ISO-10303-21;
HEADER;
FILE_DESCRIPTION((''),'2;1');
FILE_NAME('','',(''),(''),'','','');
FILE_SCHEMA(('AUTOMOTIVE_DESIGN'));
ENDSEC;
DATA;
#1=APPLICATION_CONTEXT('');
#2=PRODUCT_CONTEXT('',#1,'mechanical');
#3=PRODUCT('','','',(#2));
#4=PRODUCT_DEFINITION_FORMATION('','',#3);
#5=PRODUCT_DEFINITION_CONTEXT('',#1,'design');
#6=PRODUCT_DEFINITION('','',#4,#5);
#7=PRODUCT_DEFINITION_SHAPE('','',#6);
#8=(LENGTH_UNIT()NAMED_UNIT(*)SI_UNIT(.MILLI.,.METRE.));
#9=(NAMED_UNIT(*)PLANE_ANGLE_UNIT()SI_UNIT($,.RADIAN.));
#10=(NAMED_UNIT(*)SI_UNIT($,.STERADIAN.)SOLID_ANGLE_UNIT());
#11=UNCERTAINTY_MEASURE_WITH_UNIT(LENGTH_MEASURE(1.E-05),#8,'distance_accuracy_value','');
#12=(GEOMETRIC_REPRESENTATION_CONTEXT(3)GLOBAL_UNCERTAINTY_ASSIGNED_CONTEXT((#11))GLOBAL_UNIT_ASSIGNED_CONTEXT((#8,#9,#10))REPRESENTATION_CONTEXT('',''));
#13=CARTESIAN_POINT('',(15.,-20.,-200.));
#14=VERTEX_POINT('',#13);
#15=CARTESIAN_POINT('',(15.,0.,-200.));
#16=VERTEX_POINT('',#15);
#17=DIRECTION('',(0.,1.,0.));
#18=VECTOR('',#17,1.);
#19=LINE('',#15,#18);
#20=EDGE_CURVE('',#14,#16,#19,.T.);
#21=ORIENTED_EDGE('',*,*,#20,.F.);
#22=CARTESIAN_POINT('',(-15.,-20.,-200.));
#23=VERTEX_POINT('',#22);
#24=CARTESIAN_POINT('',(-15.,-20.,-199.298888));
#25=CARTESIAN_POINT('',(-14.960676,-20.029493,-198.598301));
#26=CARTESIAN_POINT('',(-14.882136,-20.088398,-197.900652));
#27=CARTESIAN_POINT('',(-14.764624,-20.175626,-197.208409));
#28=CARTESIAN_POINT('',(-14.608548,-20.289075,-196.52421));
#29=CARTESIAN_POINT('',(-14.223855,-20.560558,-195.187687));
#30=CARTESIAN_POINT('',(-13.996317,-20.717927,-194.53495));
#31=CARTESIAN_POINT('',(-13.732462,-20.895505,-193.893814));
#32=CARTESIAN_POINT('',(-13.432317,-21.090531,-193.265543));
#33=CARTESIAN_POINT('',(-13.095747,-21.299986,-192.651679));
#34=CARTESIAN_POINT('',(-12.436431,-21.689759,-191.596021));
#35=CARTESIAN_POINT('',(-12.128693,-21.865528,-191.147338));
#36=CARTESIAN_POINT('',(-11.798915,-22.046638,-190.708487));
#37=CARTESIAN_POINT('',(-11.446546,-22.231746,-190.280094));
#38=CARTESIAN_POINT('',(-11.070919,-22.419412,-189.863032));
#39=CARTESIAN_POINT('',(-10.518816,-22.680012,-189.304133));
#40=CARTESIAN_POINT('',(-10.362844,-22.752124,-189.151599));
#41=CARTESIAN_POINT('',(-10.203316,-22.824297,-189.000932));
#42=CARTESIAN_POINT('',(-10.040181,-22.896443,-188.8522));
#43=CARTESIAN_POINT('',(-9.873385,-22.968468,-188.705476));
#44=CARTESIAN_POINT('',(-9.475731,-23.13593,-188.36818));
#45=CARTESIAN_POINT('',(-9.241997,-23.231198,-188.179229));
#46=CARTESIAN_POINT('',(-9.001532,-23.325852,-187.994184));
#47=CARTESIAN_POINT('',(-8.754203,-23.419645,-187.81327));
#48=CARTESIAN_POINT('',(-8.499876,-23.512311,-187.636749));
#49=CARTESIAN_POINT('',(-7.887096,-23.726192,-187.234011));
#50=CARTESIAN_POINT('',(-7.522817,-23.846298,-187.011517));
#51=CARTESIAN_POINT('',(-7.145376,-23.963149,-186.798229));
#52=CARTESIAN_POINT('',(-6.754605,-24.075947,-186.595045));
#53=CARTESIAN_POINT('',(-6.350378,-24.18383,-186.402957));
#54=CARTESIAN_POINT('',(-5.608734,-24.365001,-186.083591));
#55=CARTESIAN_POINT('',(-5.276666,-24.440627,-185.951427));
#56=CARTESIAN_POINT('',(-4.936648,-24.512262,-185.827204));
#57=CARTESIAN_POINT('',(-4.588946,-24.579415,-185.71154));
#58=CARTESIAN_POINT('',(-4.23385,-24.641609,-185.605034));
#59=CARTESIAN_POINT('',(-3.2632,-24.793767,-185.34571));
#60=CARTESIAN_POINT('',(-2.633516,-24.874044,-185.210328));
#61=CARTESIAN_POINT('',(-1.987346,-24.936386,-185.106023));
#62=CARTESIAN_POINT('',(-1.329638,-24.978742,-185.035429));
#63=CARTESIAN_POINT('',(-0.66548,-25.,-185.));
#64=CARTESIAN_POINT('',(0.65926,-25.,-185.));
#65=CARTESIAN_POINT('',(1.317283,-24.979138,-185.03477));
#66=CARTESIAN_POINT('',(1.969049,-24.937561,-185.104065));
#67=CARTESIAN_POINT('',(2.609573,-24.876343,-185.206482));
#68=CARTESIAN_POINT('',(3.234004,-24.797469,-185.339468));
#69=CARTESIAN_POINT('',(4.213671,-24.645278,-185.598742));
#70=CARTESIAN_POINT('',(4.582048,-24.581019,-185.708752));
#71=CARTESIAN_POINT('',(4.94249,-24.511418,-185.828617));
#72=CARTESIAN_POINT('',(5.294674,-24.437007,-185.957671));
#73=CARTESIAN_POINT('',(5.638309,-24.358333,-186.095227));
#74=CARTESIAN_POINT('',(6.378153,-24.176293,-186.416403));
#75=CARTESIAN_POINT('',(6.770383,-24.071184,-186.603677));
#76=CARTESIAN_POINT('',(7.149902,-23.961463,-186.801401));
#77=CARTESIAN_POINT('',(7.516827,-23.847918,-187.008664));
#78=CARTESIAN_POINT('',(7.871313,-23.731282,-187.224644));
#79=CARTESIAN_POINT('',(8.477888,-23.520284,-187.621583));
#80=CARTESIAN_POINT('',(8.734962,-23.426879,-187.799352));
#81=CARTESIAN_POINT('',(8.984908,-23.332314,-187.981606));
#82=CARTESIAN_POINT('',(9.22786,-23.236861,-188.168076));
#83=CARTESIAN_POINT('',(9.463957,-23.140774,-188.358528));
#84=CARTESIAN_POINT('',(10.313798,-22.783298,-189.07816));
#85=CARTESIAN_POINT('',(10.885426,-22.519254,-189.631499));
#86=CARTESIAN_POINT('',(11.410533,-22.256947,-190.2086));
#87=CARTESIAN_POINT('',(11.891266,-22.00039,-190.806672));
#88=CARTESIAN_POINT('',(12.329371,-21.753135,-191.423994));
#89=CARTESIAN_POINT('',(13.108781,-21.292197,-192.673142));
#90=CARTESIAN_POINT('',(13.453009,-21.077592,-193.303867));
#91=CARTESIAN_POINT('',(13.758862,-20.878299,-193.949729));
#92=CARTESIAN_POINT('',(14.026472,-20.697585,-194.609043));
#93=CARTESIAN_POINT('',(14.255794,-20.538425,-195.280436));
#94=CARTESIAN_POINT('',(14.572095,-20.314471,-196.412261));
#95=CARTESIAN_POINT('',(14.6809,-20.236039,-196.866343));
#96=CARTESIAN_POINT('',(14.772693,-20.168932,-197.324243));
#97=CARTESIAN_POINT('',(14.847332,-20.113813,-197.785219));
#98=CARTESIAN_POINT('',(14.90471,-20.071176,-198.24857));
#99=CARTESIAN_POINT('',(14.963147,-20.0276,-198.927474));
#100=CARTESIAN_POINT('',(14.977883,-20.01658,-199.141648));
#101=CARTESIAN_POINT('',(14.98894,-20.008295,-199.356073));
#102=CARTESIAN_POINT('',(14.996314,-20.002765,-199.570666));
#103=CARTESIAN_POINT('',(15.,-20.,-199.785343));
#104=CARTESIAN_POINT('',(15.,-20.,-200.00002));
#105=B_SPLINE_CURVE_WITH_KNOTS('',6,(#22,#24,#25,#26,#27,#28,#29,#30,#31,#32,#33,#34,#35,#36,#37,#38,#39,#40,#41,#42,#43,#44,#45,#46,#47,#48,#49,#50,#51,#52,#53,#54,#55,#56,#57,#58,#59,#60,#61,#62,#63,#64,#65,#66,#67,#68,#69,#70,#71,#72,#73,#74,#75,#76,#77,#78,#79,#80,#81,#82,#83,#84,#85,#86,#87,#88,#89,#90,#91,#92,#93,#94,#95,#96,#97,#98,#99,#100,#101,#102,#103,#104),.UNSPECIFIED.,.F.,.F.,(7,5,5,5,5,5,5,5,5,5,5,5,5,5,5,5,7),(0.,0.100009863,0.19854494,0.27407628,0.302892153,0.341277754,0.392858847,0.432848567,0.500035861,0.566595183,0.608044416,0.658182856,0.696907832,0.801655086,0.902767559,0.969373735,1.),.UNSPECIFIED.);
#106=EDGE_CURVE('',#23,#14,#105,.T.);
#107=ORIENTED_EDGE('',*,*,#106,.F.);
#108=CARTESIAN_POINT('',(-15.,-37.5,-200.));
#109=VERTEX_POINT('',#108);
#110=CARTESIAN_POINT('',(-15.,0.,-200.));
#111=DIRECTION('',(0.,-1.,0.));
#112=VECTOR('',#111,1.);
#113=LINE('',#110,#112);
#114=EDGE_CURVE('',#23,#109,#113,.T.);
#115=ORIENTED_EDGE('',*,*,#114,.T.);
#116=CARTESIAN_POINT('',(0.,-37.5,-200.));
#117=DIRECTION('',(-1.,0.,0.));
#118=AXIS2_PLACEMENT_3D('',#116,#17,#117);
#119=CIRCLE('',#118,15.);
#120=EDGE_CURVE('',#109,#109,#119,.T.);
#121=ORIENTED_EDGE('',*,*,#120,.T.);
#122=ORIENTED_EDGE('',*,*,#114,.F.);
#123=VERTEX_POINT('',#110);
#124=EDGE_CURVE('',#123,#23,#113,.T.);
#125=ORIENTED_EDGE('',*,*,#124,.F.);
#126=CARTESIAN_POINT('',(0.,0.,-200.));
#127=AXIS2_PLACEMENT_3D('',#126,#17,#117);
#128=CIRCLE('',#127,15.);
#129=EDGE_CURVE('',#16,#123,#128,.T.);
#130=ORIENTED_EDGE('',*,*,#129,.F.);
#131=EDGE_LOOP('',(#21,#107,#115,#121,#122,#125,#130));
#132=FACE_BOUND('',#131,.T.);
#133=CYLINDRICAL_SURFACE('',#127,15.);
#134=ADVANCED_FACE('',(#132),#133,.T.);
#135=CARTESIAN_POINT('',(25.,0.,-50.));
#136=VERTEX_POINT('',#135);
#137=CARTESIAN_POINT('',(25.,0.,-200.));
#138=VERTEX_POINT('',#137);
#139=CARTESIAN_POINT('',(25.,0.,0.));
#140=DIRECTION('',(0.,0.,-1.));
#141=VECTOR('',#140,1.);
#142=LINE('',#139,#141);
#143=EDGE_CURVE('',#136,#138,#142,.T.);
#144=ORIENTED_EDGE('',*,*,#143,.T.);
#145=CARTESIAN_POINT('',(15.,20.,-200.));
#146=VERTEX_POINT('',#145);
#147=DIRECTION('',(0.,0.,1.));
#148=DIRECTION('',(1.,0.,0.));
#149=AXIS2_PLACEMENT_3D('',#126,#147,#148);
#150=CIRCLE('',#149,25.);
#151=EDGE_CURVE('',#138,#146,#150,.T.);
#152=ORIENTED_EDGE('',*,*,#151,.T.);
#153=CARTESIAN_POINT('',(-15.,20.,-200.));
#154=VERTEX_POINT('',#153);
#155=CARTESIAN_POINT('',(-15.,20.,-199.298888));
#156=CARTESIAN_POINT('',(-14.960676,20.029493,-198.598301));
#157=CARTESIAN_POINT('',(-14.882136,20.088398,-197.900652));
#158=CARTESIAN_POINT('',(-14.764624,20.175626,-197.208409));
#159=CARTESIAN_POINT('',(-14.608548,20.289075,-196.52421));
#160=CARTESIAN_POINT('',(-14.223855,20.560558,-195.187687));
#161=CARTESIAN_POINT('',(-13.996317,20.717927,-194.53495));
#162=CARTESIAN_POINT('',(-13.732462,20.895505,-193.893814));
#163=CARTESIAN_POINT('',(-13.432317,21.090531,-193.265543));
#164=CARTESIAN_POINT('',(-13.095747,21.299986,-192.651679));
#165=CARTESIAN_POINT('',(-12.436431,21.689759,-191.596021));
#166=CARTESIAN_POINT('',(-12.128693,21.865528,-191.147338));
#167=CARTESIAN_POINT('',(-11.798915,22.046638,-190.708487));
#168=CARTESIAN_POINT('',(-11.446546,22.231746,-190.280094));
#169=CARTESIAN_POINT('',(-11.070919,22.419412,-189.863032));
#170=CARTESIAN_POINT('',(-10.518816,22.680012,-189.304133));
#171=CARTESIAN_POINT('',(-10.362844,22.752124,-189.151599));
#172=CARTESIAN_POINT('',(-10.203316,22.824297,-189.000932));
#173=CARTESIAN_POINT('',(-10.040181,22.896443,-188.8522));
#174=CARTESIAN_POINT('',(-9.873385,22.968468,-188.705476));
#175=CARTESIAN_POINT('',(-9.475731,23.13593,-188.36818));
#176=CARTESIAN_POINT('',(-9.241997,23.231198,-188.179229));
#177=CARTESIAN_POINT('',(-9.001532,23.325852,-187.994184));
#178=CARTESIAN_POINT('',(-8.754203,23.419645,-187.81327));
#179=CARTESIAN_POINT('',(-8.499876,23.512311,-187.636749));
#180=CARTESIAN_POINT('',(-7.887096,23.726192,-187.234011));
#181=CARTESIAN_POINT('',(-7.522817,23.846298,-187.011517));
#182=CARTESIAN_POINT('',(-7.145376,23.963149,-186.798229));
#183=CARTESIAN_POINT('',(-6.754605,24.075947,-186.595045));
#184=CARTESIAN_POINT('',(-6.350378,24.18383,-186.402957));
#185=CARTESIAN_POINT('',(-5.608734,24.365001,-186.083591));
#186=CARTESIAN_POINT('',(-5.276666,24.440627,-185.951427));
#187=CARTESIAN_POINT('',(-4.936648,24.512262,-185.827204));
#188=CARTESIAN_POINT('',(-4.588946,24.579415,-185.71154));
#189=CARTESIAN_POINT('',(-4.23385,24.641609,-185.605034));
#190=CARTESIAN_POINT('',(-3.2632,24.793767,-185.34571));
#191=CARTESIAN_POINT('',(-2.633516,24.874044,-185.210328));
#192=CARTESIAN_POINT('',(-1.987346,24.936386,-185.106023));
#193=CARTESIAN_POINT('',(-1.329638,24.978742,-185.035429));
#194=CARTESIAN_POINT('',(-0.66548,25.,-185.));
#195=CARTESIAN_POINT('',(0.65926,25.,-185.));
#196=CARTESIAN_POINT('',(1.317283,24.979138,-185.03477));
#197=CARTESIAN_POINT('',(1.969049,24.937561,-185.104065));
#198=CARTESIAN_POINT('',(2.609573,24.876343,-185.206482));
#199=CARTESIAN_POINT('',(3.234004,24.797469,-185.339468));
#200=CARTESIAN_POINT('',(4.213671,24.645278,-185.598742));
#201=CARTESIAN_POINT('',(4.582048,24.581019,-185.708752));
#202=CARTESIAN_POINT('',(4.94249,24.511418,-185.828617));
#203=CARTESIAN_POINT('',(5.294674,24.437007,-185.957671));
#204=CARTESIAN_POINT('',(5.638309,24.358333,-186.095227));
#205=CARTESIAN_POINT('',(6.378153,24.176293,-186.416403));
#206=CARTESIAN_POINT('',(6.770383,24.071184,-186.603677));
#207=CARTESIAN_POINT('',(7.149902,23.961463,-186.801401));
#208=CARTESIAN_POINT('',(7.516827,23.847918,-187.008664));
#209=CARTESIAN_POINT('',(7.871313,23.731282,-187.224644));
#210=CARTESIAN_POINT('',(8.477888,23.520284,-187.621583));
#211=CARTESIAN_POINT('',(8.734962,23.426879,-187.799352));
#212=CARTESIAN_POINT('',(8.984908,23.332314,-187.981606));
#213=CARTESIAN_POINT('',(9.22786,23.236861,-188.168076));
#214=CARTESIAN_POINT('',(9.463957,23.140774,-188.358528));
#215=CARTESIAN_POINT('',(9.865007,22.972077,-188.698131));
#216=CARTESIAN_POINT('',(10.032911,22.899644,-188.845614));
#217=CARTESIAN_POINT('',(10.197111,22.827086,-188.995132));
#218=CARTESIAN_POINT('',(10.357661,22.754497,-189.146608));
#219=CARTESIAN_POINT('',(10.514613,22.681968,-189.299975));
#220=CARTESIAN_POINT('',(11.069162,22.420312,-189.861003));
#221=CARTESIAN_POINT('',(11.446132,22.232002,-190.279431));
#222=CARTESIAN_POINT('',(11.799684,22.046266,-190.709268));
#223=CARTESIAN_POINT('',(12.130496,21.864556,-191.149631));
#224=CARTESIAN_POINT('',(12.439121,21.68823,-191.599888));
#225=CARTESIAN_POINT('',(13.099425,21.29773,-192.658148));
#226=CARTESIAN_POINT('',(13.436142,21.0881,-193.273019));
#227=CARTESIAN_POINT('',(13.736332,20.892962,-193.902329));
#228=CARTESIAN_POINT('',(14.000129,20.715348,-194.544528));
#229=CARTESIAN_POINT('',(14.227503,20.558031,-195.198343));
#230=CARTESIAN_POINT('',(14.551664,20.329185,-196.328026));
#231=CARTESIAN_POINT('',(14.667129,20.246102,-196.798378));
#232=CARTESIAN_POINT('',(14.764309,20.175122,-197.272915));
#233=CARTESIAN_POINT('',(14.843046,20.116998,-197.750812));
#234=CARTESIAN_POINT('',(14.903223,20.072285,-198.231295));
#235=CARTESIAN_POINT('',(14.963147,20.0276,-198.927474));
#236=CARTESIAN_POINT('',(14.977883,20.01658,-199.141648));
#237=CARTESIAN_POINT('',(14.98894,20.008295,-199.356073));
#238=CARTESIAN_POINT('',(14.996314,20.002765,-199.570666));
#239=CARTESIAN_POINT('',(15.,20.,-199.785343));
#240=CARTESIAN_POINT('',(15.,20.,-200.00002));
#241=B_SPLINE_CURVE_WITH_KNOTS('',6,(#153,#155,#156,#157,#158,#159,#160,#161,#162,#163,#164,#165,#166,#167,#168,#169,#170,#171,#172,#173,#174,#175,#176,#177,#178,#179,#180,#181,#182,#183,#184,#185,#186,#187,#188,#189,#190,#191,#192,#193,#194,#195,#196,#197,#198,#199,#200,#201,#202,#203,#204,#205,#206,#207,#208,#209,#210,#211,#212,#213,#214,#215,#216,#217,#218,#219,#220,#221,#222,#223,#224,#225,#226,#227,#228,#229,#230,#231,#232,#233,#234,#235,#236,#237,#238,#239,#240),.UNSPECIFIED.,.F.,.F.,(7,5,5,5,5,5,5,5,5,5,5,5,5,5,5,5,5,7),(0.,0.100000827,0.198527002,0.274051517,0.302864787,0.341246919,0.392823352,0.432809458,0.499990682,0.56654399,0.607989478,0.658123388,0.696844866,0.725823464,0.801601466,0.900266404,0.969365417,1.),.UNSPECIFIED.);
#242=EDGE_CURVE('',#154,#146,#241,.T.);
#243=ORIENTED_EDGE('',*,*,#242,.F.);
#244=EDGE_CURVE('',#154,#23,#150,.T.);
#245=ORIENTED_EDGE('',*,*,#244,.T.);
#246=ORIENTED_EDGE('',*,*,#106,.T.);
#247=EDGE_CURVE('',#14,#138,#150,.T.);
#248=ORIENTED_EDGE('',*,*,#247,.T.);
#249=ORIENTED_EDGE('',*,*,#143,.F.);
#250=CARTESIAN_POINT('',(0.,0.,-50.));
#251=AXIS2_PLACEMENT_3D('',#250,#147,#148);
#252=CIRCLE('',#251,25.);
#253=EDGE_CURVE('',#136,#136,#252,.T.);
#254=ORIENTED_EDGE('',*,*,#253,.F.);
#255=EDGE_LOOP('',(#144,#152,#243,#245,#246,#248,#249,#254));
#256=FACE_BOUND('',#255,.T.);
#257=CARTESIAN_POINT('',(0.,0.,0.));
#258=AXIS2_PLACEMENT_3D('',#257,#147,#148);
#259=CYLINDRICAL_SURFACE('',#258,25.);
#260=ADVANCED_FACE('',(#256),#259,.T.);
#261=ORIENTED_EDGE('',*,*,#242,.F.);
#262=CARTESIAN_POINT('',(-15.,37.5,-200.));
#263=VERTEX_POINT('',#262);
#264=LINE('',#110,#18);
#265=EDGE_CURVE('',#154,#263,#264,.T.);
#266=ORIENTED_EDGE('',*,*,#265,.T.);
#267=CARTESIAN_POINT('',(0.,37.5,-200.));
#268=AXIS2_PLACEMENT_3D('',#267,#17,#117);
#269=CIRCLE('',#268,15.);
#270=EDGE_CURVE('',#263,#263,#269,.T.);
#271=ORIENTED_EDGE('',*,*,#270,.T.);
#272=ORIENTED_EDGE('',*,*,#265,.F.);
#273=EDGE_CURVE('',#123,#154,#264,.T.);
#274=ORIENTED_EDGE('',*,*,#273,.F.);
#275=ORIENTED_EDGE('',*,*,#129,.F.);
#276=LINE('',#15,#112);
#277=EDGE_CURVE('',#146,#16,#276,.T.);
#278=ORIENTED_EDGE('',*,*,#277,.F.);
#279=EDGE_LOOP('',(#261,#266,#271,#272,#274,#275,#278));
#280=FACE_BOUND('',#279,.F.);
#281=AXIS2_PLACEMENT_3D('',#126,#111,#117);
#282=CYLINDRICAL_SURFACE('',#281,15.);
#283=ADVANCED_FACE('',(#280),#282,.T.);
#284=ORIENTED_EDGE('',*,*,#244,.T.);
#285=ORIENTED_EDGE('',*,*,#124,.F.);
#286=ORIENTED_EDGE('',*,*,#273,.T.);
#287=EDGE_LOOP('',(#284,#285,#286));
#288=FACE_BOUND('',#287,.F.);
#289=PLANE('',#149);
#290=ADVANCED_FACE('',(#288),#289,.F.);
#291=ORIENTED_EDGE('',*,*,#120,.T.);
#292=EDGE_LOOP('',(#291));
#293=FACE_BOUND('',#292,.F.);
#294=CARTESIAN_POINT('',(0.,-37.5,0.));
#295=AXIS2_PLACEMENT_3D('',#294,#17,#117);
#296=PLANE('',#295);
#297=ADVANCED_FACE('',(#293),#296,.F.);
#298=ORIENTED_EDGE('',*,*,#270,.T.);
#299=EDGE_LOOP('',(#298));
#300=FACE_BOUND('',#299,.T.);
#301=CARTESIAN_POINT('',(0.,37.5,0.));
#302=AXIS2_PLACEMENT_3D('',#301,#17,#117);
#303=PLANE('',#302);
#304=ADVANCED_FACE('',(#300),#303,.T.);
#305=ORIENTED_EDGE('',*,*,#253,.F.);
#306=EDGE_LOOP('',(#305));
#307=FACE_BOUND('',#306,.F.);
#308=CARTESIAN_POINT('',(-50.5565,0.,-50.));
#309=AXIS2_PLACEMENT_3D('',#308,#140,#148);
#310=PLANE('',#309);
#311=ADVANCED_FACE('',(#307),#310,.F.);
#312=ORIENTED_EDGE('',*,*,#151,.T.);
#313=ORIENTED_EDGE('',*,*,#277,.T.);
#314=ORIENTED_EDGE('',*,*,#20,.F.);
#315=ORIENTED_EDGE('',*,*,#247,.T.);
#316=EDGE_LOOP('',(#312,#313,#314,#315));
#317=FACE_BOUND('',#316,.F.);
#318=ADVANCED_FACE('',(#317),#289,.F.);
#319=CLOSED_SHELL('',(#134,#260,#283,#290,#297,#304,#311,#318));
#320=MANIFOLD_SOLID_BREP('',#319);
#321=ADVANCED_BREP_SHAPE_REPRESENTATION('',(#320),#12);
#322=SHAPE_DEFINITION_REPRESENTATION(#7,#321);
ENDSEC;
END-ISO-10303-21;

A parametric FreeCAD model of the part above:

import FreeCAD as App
import Part
import Sketcher
from FreeCAD import Vector
Q = App.Units.Quantity

doc = App.newDocument("Part")
body = doc.addObject("PartDesign::Body", "Body")

# Sketch on XY plane
sketch1 = body.newObject("Sketcher::SketchObject", "Sketch")
sketch1.AttachmentSupport = (doc.getObject("XY_Plane"), [""])
sketch1.MapMode = "FlatFace"
sketch1.addGeometry(Part.Circle(Vector(0, 0, 0), Vector(0, 0, 1), 25), False)
sketch1.addConstraint(Sketcher.Constraint("Coincident", 0, 3, -1, 1))
sketch1.addConstraint(Sketcher.Constraint("Diameter", 0, Q("50 mm")))
pad1 = body.newObject("PartDesign::Pad", "Pad")
pad1.Profile = sketch1
pad1.Length = 200
pad1.Reversed = True

# Sketch on XZ plane
sketch2 = body.newObject("Sketcher::SketchObject", "Sketch001")
sketch2.AttachmentSupport = (doc.getObject("XZ_Plane"), [""])
sketch2.MapMode = "FlatFace"
sketch2.addGeometry(Part.LineSegment(Vector(56, -50, 0), Vector(-51, -50, 0)), False)
sketch2.addGeometry(Part.LineSegment(Vector(-51, -50, 0), Vector(-51, 48, 0)), False)
sketch2.addGeometry(Part.LineSegment(Vector(-51, 48, 0), Vector(56, 48, 0)), False)
sketch2.addGeometry(Part.LineSegment(Vector(56, 48, 0), Vector(56, -50, 0)), False)
sketch2.addConstraint(Sketcher.Constraint("Coincident", 0, 2, 1, 1))
sketch2.addConstraint(Sketcher.Constraint("Coincident", 1, 2, 2, 1))
sketch2.addConstraint(Sketcher.Constraint("Coincident", 2, 2, 3, 1))
sketch2.addConstraint(Sketcher.Constraint("Coincident", 3, 2, 0, 1))
sketch2.addConstraint(Sketcher.Constraint("Horizontal", 0))
sketch2.addConstraint(Sketcher.Constraint("Vertical", 1))
sketch2.addConstraint(Sketcher.Constraint("Horizontal", 2))
sketch2.addConstraint(Sketcher.Constraint("Vertical", 3))
sketch2.addConstraint(Sketcher.Constraint("DistanceY", 0, 2, -1, 1, Q("50 mm")))
sketch2.addConstraint(Sketcher.Constraint("DistanceX", 0, 2, 0, 1, Q("106.624 mm")))
sketch2.addConstraint(Sketcher.Constraint("DistanceY", 1, 1, 1, 2, Q("97.5615 mm")))
sketch2.addConstraint(Sketcher.Constraint("DistanceX", 0, 2, -1, 1, Q("50.5565 mm")))
pocket1 = body.newObject("PartDesign::Pocket", "Pocket")
pocket1.Profile = sketch2
pocket1.Length = 200
pocket1.Midplane = True

# Sketch on XZ plane
sketch3 = body.newObject("Sketcher::SketchObject", "Sketch002")
sketch3.AttachmentSupport = (doc.getObject("XZ_Plane"), [""])
sketch3.MapMode = "FlatFace"
sketch3.addGeometry(Part.Circle(Vector(0, -200, 0), Vector(0, 0, 1), 15), False)
sketch3.addConstraint(Sketcher.Constraint("PointOnObject", 0, 3, -2))
sketch3.addConstraint(Sketcher.Constraint("Diameter", 0, Q("30 mm")))
sketch3.addConstraint(Sketcher.Constraint("DistanceY", 0, 3, -1, 1, Q("200 mm")))
pad2 = body.newObject("PartDesign::Pad", "Pad001")
pad2.Profile = sketch3
pad2.Length = 75
pad2.Midplane = True

doc.recompute()
